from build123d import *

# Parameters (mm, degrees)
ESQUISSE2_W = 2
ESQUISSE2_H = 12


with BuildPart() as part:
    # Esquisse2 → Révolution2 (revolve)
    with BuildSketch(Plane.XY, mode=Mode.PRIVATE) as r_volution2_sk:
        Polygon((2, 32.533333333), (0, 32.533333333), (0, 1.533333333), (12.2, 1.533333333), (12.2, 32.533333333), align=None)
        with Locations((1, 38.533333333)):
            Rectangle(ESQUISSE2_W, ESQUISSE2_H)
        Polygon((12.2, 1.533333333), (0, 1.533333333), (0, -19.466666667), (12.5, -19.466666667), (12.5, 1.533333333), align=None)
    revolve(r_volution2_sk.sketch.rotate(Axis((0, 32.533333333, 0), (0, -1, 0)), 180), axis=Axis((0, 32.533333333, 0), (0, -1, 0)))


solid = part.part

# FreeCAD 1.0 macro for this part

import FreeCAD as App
import Part
import Sketcher

doc = App.newDocument("Part")
body = doc.addObject("PartDesign::Body", "Body")

sketch1 = body.newObject("Sketcher::SketchObject", "Sketch")
sketch1.AttachmentSupport = (doc.getObject("XY_Plane"), [""])
sketch1.MapMode = "FlatFace"
sketch1.addGeometry(Part.LineSegment(App.Vector(12.2, 1.53, 0), App.Vector(12.2, 32.53, 0)), False)
sketch1.addGeometry(Part.LineSegment(App.Vector(12.2, 32.53, 0), App.Vector(2, 32.53, 0)), False)
sketch1.addGeometry(Part.LineSegment(App.Vector(2, 32.53, 0), App.Vector(2, 44.53, 0)), False)
sketch1.addGeometry(Part.LineSegment(App.Vector(2, 44.53, 0), App.Vector(0, 44.53, 0)), False)
sketch1.addGeometry(Part.LineSegment(App.Vector(0, 44.53, 0), App.Vector(0, -19.47, 0)), False)
sketch1.addGeometry(Part.LineSegment(App.Vector(0, -19.47, 0), App.Vector(12.5, -19.47, 0)), False)
sketch1.addGeometry(Part.LineSegment(App.Vector(12.5, -19.47, 0), App.Vector(12.5, 1.53, 0)), False)
sketch1.addGeometry(Part.LineSegment(App.Vector(12.5, 1.53, 0), App.Vector(12.2, 1.53, 0)), False)
sketch1.addConstraint(Sketcher.Constraint("Coincident", 0, 2, 1, 1))
sketch1.addConstraint(Sketcher.Constraint("Coincident", 1, 2, 2, 1))
sketch1.addConstraint(Sketcher.Constraint("Coincident", 2, 2, 3, 1))
sketch1.addConstraint(Sketcher.Constraint("Coincident", 3, 2, 4, 1))
sketch1.addConstraint(Sketcher.Constraint("Coincident", 4, 2, 5, 1))
sketch1.addConstraint(Sketcher.Constraint("Coincident", 5, 2, 6, 1))
sketch1.addConstraint(Sketcher.Constraint("Coincident", 6, 2, 7, 1))
sketch1.addConstraint(Sketcher.Constraint("Coincident", 7, 2, 0, 1))
sketch1.addConstraint(Sketcher.Constraint("Vertical", 0))
sketch1.addConstraint(Sketcher.Constraint("Horizontal", 1))
sketch1.addConstraint(Sketcher.Constraint("Vertical", 2))
sketch1.addConstraint(Sketcher.Constraint("Horizontal", 3))
sketch1.addConstraint(Sketcher.Constraint("Vertical", 4))
sketch1.addConstraint(Sketcher.Constraint("Horizontal", 5))
sketch1.addConstraint(Sketcher.Constraint("Vertical", 6))
sketch1.addConstraint(Sketcher.Constraint("Horizontal", 7))
sketch1.addConstraint(Sketcher.Constraint("PointOnObject", 3, 2, -2))
sketch1.addConstraint(Sketcher.Constraint("DistanceX", 3, 2, 3, 1, 2.0))
sketch1.addConstraint(Sketcher.Constraint("DistanceY", 0, 1, 0, 2, 31.0))
sketch1.addConstraint(Sketcher.Constraint("DistanceY", 2, 1, 2, 2, 12.0))
sketch1.addConstraint(Sketcher.Constraint("DistanceY", 4, 2, 4, 1, 64.0))
sketch1.addConstraint(Sketcher.Constraint("DistanceX", 1, 2, 1, 1, 10.2))
sketch1.addConstraint(Sketcher.Constraint("DistanceX", 5, 1, 5, 2, 12.5))
sketch1.addConstraint(Sketcher.Constraint("DistanceY", -1, 1, 0, 2, 32.533333))
revolution = body.newObject("PartDesign::Revolution", "Revolution")
revolution.Profile = sketch1
revolution.ReferenceAxis = (sketch1, ["V_Axis"])
revolution.Angle = 360

doc.recompute()
